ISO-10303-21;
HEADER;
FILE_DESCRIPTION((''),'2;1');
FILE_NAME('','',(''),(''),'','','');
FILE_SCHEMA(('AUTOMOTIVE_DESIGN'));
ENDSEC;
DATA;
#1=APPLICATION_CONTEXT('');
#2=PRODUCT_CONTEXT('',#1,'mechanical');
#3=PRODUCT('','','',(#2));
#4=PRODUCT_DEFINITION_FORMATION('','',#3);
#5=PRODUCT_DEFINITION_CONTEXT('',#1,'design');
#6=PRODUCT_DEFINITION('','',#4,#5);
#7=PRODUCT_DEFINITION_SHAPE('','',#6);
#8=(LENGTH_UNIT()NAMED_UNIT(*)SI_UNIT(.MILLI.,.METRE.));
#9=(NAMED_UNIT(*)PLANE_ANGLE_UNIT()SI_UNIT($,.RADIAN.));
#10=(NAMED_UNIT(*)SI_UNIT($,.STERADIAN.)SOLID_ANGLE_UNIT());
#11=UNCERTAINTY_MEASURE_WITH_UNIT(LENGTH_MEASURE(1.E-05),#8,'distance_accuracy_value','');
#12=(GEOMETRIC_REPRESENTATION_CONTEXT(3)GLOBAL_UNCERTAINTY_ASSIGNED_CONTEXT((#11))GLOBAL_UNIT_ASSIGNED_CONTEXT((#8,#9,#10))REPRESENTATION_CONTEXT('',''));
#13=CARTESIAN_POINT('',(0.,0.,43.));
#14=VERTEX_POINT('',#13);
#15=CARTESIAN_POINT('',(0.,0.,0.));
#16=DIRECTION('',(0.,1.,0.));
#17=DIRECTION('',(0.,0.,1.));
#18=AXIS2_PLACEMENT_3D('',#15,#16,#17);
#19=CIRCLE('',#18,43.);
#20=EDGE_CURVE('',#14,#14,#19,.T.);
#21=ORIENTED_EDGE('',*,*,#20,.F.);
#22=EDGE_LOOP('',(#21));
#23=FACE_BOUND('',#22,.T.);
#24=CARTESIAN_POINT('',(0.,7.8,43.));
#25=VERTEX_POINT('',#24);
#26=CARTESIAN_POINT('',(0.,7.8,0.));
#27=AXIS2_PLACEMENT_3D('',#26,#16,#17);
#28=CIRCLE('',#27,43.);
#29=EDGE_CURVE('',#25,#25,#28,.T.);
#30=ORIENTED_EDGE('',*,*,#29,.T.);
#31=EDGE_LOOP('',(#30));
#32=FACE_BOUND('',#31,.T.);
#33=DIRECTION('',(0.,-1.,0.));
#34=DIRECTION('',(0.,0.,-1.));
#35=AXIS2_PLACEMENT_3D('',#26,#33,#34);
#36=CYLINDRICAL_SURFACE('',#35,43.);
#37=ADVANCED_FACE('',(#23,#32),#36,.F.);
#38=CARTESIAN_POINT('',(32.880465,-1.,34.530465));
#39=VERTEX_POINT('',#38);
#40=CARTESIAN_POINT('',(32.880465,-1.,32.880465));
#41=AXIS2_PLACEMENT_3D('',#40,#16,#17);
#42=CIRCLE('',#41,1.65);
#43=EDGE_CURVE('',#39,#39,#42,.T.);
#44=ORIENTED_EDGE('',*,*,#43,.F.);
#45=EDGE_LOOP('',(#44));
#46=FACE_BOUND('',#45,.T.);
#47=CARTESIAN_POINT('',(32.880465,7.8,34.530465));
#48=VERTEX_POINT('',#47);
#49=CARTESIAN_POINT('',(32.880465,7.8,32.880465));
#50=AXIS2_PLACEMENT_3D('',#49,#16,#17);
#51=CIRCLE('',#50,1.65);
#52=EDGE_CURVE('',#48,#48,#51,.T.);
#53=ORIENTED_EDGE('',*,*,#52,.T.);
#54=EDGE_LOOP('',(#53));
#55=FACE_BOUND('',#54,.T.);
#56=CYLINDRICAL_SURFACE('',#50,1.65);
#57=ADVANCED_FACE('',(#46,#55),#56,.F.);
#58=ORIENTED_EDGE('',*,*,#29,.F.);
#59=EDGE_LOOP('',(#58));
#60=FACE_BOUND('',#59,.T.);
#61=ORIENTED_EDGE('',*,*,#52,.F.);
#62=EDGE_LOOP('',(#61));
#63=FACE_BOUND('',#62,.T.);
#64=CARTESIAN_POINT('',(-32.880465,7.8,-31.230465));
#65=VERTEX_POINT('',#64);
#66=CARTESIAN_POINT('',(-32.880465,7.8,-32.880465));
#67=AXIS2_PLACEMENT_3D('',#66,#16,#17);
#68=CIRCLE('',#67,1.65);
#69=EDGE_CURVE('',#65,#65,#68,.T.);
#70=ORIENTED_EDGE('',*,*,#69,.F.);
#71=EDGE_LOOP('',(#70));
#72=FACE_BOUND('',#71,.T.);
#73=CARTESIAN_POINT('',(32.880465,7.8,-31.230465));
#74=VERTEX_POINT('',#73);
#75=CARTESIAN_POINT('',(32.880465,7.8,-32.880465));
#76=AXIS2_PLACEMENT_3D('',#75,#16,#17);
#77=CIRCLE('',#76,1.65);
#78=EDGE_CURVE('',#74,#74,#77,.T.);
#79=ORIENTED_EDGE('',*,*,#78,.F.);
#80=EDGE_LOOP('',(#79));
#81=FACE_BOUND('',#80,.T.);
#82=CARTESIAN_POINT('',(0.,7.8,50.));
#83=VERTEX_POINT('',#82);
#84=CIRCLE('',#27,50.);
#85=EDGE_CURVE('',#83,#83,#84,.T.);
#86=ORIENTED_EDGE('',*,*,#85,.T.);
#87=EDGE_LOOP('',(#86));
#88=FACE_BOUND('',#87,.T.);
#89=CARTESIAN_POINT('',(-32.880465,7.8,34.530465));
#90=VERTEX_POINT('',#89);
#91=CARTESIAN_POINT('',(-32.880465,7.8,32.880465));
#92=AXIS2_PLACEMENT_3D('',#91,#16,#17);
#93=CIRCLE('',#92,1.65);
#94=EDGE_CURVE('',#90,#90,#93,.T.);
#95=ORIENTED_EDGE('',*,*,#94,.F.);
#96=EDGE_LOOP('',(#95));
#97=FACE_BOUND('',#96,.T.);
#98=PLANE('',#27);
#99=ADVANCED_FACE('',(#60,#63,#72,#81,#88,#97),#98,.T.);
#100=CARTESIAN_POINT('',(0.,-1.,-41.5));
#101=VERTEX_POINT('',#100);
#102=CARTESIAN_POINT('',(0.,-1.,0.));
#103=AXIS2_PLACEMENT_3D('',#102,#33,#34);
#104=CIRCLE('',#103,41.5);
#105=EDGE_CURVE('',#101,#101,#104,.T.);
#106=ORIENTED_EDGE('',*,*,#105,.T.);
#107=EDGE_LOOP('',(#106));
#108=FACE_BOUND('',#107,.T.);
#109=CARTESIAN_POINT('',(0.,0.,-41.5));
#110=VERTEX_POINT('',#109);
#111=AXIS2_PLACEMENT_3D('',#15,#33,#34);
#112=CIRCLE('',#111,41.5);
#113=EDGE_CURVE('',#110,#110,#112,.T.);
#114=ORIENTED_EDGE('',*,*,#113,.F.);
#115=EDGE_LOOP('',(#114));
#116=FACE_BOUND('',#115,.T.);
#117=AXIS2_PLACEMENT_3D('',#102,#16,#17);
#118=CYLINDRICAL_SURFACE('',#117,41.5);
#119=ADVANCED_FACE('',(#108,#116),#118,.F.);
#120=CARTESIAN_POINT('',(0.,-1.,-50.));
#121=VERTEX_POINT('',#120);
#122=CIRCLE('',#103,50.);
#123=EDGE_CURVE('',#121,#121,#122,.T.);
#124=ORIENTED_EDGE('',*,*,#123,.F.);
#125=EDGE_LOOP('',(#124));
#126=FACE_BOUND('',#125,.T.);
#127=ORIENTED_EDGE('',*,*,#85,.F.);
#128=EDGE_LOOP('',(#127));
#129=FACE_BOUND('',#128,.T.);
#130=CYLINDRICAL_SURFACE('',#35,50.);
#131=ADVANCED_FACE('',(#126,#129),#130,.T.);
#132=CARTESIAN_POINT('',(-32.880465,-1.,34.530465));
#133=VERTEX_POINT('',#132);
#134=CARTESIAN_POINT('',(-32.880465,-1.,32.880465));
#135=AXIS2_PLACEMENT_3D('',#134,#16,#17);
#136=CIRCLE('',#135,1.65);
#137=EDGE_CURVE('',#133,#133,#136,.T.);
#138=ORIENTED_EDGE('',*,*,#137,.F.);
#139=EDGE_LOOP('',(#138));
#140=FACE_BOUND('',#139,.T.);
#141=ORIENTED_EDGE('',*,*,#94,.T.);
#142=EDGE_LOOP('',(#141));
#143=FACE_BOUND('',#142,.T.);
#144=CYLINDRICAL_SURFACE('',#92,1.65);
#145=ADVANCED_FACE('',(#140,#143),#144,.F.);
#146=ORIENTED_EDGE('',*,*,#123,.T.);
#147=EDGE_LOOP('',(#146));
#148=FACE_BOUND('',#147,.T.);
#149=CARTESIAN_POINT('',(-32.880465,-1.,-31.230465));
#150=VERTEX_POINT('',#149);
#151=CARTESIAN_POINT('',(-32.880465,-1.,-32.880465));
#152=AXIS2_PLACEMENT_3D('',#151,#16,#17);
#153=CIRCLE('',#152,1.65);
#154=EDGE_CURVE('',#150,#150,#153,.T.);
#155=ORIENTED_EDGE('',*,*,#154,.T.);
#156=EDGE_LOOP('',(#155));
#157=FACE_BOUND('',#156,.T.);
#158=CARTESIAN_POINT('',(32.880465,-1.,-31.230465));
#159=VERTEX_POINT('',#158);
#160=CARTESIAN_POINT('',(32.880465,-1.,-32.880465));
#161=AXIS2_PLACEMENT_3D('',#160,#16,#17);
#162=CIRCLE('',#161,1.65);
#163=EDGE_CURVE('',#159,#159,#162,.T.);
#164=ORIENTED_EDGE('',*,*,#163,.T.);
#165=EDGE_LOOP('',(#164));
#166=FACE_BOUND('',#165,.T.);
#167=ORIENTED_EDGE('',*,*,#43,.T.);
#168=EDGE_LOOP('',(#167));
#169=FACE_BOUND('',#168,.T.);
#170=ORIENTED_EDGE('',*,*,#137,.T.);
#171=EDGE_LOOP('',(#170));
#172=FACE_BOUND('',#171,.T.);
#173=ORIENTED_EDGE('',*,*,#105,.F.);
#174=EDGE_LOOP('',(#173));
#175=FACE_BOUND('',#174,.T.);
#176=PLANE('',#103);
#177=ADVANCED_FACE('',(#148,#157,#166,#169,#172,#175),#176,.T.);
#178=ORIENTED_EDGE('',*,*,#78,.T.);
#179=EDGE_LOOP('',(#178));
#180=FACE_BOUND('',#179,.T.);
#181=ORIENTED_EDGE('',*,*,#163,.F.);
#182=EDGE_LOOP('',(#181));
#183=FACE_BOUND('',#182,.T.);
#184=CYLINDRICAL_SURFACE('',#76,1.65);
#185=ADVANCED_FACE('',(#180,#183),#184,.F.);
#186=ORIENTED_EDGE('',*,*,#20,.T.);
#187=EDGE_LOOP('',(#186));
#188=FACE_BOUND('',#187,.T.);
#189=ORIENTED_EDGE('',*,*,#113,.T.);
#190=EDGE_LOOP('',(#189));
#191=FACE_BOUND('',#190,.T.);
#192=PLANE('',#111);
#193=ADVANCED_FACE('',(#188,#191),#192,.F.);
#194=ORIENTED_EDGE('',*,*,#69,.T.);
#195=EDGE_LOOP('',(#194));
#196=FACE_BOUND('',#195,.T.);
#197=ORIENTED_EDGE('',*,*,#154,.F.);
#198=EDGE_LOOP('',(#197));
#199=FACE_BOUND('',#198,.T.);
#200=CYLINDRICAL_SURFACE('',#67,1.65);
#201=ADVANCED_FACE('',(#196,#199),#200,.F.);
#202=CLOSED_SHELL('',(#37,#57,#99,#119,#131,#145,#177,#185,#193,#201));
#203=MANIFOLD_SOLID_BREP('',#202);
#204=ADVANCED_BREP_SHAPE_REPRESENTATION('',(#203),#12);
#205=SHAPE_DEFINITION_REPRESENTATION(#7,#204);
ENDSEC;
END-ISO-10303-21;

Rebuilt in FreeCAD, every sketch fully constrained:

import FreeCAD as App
import Part
import Sketcher

V = App.Vector
Q = App.Units.Quantity

doc = App.newDocument("Part")
body = doc.addObject("PartDesign::Body", "Body")

# Sketch on XZ plane
sketch1 = body.newObject("Sketcher::SketchObject", "Sketch")
sketch1.AttachmentSupport = (doc.getObject("XZ_Plane"), [""])
sketch1.MapMode = "FlatFace"
sketch1.addGeometry([
    Part.Circle(V(0, 0, 0), V(0, 0, 1), 50),
    Part.Circle(V(0, 0, 0), V(0, 0, 1), 43),
], False)
sketch1.addConstraint([
    Sketcher.Constraint("Coincident", 0, 3, -1, 1),
    Sketcher.Constraint("Coincident", 1, 3, -1, 1),
    Sketcher.Constraint("Diameter", 0, Q("100 mm")),
    Sketcher.Constraint("Diameter", 1, Q("86 mm")),
])
pad1 = body.newObject("PartDesign::Pad", "Pad")
pad1.Profile = sketch1
pad1.Length = 7.8
pad1.Reversed = True

# Sketch on XZ plane
sketch2 = body.newObject("Sketcher::SketchObject", "Sketch001")
sketch2.AttachmentSupport = (doc.getObject("XZ_Plane"), [""])
sketch2.MapMode = "FlatFace"
sketch2.addGeometry([
    Part.Circle(V(0, 0, 0), V(0, 0, 1), 50),
    Part.Circle(V(0, 0, 0), V(0, 0, 1), 42),
], False)
sketch2.addConstraint([
    Sketcher.Constraint("Coincident", 0, 3, -1, 1),
    Sketcher.Constraint("Coincident", 1, 3, -1, 1),
    Sketcher.Constraint("Diameter", 0, Q("100 mm")),
    Sketcher.Constraint("Diameter", 1, Q("83 mm")),
])
pad2 = body.newObject("PartDesign::Pad", "Pad001")
pad2.Profile = sketch2
pad2.Length = 1

# Sketch on XZ plane
sketch3 = body.newObject("Sketcher::SketchObject", "Sketch002")
sketch3.AttachmentSupport = (doc.getObject("XZ_Plane"), [""])
sketch3.MapMode = "FlatFace"
sketch3.AttachmentOffset = App.Placement(V(0, 0, -7.8), App.Rotation())
sketch3.addGeometry([
    Part.Circle(V(-32.9, -32.9, 0), V(0, 0, 1), 1.6),
    Part.Circle(V(-32.9, 32.9, 0), V(0, 0, 1), 1.6),
    Part.Circle(V(32.9, 32.9, 0), V(0, 0, 1), 1.6),
    Part.Circle(V(32.9, -32.9, 0), V(0, 0, 1), 1.6),
], False)
sketch3.addConstraint([
    Sketcher.Constraint("Equal", 0, 1),
    Sketcher.Constraint("Equal", 1, 2),
    Sketcher.Constraint("Equal", 2, 3),
    Sketcher.Constraint("Symmetric", 0, 3, 2, 3, -1, 1),
    Sketcher.Constraint("Symmetric", 1, 3, 3, 3, -1, 1),
    Sketcher.Constraint("Symmetric", 1, 3, 2, 3, -2),
    Sketcher.Constraint("Diameter", 0, Q("3.3 mm")),
    Sketcher.Constraint("DistanceY", 0, 3, 1, 3, Q("65.760931 mm")),
    Sketcher.Constraint("DistanceX", 1, 3, 2, 3, Q("65.760931 mm")),
])
doc.recompute()
hole = body.newObject("PartDesign::Hole", "Hole")
hole.Profile = sketch3
hole.ThreadType = "None"
hole.Diameter = 3.3
hole.DepthType = "ThroughAll"
hole.Reversed = True

doc.recompute()
